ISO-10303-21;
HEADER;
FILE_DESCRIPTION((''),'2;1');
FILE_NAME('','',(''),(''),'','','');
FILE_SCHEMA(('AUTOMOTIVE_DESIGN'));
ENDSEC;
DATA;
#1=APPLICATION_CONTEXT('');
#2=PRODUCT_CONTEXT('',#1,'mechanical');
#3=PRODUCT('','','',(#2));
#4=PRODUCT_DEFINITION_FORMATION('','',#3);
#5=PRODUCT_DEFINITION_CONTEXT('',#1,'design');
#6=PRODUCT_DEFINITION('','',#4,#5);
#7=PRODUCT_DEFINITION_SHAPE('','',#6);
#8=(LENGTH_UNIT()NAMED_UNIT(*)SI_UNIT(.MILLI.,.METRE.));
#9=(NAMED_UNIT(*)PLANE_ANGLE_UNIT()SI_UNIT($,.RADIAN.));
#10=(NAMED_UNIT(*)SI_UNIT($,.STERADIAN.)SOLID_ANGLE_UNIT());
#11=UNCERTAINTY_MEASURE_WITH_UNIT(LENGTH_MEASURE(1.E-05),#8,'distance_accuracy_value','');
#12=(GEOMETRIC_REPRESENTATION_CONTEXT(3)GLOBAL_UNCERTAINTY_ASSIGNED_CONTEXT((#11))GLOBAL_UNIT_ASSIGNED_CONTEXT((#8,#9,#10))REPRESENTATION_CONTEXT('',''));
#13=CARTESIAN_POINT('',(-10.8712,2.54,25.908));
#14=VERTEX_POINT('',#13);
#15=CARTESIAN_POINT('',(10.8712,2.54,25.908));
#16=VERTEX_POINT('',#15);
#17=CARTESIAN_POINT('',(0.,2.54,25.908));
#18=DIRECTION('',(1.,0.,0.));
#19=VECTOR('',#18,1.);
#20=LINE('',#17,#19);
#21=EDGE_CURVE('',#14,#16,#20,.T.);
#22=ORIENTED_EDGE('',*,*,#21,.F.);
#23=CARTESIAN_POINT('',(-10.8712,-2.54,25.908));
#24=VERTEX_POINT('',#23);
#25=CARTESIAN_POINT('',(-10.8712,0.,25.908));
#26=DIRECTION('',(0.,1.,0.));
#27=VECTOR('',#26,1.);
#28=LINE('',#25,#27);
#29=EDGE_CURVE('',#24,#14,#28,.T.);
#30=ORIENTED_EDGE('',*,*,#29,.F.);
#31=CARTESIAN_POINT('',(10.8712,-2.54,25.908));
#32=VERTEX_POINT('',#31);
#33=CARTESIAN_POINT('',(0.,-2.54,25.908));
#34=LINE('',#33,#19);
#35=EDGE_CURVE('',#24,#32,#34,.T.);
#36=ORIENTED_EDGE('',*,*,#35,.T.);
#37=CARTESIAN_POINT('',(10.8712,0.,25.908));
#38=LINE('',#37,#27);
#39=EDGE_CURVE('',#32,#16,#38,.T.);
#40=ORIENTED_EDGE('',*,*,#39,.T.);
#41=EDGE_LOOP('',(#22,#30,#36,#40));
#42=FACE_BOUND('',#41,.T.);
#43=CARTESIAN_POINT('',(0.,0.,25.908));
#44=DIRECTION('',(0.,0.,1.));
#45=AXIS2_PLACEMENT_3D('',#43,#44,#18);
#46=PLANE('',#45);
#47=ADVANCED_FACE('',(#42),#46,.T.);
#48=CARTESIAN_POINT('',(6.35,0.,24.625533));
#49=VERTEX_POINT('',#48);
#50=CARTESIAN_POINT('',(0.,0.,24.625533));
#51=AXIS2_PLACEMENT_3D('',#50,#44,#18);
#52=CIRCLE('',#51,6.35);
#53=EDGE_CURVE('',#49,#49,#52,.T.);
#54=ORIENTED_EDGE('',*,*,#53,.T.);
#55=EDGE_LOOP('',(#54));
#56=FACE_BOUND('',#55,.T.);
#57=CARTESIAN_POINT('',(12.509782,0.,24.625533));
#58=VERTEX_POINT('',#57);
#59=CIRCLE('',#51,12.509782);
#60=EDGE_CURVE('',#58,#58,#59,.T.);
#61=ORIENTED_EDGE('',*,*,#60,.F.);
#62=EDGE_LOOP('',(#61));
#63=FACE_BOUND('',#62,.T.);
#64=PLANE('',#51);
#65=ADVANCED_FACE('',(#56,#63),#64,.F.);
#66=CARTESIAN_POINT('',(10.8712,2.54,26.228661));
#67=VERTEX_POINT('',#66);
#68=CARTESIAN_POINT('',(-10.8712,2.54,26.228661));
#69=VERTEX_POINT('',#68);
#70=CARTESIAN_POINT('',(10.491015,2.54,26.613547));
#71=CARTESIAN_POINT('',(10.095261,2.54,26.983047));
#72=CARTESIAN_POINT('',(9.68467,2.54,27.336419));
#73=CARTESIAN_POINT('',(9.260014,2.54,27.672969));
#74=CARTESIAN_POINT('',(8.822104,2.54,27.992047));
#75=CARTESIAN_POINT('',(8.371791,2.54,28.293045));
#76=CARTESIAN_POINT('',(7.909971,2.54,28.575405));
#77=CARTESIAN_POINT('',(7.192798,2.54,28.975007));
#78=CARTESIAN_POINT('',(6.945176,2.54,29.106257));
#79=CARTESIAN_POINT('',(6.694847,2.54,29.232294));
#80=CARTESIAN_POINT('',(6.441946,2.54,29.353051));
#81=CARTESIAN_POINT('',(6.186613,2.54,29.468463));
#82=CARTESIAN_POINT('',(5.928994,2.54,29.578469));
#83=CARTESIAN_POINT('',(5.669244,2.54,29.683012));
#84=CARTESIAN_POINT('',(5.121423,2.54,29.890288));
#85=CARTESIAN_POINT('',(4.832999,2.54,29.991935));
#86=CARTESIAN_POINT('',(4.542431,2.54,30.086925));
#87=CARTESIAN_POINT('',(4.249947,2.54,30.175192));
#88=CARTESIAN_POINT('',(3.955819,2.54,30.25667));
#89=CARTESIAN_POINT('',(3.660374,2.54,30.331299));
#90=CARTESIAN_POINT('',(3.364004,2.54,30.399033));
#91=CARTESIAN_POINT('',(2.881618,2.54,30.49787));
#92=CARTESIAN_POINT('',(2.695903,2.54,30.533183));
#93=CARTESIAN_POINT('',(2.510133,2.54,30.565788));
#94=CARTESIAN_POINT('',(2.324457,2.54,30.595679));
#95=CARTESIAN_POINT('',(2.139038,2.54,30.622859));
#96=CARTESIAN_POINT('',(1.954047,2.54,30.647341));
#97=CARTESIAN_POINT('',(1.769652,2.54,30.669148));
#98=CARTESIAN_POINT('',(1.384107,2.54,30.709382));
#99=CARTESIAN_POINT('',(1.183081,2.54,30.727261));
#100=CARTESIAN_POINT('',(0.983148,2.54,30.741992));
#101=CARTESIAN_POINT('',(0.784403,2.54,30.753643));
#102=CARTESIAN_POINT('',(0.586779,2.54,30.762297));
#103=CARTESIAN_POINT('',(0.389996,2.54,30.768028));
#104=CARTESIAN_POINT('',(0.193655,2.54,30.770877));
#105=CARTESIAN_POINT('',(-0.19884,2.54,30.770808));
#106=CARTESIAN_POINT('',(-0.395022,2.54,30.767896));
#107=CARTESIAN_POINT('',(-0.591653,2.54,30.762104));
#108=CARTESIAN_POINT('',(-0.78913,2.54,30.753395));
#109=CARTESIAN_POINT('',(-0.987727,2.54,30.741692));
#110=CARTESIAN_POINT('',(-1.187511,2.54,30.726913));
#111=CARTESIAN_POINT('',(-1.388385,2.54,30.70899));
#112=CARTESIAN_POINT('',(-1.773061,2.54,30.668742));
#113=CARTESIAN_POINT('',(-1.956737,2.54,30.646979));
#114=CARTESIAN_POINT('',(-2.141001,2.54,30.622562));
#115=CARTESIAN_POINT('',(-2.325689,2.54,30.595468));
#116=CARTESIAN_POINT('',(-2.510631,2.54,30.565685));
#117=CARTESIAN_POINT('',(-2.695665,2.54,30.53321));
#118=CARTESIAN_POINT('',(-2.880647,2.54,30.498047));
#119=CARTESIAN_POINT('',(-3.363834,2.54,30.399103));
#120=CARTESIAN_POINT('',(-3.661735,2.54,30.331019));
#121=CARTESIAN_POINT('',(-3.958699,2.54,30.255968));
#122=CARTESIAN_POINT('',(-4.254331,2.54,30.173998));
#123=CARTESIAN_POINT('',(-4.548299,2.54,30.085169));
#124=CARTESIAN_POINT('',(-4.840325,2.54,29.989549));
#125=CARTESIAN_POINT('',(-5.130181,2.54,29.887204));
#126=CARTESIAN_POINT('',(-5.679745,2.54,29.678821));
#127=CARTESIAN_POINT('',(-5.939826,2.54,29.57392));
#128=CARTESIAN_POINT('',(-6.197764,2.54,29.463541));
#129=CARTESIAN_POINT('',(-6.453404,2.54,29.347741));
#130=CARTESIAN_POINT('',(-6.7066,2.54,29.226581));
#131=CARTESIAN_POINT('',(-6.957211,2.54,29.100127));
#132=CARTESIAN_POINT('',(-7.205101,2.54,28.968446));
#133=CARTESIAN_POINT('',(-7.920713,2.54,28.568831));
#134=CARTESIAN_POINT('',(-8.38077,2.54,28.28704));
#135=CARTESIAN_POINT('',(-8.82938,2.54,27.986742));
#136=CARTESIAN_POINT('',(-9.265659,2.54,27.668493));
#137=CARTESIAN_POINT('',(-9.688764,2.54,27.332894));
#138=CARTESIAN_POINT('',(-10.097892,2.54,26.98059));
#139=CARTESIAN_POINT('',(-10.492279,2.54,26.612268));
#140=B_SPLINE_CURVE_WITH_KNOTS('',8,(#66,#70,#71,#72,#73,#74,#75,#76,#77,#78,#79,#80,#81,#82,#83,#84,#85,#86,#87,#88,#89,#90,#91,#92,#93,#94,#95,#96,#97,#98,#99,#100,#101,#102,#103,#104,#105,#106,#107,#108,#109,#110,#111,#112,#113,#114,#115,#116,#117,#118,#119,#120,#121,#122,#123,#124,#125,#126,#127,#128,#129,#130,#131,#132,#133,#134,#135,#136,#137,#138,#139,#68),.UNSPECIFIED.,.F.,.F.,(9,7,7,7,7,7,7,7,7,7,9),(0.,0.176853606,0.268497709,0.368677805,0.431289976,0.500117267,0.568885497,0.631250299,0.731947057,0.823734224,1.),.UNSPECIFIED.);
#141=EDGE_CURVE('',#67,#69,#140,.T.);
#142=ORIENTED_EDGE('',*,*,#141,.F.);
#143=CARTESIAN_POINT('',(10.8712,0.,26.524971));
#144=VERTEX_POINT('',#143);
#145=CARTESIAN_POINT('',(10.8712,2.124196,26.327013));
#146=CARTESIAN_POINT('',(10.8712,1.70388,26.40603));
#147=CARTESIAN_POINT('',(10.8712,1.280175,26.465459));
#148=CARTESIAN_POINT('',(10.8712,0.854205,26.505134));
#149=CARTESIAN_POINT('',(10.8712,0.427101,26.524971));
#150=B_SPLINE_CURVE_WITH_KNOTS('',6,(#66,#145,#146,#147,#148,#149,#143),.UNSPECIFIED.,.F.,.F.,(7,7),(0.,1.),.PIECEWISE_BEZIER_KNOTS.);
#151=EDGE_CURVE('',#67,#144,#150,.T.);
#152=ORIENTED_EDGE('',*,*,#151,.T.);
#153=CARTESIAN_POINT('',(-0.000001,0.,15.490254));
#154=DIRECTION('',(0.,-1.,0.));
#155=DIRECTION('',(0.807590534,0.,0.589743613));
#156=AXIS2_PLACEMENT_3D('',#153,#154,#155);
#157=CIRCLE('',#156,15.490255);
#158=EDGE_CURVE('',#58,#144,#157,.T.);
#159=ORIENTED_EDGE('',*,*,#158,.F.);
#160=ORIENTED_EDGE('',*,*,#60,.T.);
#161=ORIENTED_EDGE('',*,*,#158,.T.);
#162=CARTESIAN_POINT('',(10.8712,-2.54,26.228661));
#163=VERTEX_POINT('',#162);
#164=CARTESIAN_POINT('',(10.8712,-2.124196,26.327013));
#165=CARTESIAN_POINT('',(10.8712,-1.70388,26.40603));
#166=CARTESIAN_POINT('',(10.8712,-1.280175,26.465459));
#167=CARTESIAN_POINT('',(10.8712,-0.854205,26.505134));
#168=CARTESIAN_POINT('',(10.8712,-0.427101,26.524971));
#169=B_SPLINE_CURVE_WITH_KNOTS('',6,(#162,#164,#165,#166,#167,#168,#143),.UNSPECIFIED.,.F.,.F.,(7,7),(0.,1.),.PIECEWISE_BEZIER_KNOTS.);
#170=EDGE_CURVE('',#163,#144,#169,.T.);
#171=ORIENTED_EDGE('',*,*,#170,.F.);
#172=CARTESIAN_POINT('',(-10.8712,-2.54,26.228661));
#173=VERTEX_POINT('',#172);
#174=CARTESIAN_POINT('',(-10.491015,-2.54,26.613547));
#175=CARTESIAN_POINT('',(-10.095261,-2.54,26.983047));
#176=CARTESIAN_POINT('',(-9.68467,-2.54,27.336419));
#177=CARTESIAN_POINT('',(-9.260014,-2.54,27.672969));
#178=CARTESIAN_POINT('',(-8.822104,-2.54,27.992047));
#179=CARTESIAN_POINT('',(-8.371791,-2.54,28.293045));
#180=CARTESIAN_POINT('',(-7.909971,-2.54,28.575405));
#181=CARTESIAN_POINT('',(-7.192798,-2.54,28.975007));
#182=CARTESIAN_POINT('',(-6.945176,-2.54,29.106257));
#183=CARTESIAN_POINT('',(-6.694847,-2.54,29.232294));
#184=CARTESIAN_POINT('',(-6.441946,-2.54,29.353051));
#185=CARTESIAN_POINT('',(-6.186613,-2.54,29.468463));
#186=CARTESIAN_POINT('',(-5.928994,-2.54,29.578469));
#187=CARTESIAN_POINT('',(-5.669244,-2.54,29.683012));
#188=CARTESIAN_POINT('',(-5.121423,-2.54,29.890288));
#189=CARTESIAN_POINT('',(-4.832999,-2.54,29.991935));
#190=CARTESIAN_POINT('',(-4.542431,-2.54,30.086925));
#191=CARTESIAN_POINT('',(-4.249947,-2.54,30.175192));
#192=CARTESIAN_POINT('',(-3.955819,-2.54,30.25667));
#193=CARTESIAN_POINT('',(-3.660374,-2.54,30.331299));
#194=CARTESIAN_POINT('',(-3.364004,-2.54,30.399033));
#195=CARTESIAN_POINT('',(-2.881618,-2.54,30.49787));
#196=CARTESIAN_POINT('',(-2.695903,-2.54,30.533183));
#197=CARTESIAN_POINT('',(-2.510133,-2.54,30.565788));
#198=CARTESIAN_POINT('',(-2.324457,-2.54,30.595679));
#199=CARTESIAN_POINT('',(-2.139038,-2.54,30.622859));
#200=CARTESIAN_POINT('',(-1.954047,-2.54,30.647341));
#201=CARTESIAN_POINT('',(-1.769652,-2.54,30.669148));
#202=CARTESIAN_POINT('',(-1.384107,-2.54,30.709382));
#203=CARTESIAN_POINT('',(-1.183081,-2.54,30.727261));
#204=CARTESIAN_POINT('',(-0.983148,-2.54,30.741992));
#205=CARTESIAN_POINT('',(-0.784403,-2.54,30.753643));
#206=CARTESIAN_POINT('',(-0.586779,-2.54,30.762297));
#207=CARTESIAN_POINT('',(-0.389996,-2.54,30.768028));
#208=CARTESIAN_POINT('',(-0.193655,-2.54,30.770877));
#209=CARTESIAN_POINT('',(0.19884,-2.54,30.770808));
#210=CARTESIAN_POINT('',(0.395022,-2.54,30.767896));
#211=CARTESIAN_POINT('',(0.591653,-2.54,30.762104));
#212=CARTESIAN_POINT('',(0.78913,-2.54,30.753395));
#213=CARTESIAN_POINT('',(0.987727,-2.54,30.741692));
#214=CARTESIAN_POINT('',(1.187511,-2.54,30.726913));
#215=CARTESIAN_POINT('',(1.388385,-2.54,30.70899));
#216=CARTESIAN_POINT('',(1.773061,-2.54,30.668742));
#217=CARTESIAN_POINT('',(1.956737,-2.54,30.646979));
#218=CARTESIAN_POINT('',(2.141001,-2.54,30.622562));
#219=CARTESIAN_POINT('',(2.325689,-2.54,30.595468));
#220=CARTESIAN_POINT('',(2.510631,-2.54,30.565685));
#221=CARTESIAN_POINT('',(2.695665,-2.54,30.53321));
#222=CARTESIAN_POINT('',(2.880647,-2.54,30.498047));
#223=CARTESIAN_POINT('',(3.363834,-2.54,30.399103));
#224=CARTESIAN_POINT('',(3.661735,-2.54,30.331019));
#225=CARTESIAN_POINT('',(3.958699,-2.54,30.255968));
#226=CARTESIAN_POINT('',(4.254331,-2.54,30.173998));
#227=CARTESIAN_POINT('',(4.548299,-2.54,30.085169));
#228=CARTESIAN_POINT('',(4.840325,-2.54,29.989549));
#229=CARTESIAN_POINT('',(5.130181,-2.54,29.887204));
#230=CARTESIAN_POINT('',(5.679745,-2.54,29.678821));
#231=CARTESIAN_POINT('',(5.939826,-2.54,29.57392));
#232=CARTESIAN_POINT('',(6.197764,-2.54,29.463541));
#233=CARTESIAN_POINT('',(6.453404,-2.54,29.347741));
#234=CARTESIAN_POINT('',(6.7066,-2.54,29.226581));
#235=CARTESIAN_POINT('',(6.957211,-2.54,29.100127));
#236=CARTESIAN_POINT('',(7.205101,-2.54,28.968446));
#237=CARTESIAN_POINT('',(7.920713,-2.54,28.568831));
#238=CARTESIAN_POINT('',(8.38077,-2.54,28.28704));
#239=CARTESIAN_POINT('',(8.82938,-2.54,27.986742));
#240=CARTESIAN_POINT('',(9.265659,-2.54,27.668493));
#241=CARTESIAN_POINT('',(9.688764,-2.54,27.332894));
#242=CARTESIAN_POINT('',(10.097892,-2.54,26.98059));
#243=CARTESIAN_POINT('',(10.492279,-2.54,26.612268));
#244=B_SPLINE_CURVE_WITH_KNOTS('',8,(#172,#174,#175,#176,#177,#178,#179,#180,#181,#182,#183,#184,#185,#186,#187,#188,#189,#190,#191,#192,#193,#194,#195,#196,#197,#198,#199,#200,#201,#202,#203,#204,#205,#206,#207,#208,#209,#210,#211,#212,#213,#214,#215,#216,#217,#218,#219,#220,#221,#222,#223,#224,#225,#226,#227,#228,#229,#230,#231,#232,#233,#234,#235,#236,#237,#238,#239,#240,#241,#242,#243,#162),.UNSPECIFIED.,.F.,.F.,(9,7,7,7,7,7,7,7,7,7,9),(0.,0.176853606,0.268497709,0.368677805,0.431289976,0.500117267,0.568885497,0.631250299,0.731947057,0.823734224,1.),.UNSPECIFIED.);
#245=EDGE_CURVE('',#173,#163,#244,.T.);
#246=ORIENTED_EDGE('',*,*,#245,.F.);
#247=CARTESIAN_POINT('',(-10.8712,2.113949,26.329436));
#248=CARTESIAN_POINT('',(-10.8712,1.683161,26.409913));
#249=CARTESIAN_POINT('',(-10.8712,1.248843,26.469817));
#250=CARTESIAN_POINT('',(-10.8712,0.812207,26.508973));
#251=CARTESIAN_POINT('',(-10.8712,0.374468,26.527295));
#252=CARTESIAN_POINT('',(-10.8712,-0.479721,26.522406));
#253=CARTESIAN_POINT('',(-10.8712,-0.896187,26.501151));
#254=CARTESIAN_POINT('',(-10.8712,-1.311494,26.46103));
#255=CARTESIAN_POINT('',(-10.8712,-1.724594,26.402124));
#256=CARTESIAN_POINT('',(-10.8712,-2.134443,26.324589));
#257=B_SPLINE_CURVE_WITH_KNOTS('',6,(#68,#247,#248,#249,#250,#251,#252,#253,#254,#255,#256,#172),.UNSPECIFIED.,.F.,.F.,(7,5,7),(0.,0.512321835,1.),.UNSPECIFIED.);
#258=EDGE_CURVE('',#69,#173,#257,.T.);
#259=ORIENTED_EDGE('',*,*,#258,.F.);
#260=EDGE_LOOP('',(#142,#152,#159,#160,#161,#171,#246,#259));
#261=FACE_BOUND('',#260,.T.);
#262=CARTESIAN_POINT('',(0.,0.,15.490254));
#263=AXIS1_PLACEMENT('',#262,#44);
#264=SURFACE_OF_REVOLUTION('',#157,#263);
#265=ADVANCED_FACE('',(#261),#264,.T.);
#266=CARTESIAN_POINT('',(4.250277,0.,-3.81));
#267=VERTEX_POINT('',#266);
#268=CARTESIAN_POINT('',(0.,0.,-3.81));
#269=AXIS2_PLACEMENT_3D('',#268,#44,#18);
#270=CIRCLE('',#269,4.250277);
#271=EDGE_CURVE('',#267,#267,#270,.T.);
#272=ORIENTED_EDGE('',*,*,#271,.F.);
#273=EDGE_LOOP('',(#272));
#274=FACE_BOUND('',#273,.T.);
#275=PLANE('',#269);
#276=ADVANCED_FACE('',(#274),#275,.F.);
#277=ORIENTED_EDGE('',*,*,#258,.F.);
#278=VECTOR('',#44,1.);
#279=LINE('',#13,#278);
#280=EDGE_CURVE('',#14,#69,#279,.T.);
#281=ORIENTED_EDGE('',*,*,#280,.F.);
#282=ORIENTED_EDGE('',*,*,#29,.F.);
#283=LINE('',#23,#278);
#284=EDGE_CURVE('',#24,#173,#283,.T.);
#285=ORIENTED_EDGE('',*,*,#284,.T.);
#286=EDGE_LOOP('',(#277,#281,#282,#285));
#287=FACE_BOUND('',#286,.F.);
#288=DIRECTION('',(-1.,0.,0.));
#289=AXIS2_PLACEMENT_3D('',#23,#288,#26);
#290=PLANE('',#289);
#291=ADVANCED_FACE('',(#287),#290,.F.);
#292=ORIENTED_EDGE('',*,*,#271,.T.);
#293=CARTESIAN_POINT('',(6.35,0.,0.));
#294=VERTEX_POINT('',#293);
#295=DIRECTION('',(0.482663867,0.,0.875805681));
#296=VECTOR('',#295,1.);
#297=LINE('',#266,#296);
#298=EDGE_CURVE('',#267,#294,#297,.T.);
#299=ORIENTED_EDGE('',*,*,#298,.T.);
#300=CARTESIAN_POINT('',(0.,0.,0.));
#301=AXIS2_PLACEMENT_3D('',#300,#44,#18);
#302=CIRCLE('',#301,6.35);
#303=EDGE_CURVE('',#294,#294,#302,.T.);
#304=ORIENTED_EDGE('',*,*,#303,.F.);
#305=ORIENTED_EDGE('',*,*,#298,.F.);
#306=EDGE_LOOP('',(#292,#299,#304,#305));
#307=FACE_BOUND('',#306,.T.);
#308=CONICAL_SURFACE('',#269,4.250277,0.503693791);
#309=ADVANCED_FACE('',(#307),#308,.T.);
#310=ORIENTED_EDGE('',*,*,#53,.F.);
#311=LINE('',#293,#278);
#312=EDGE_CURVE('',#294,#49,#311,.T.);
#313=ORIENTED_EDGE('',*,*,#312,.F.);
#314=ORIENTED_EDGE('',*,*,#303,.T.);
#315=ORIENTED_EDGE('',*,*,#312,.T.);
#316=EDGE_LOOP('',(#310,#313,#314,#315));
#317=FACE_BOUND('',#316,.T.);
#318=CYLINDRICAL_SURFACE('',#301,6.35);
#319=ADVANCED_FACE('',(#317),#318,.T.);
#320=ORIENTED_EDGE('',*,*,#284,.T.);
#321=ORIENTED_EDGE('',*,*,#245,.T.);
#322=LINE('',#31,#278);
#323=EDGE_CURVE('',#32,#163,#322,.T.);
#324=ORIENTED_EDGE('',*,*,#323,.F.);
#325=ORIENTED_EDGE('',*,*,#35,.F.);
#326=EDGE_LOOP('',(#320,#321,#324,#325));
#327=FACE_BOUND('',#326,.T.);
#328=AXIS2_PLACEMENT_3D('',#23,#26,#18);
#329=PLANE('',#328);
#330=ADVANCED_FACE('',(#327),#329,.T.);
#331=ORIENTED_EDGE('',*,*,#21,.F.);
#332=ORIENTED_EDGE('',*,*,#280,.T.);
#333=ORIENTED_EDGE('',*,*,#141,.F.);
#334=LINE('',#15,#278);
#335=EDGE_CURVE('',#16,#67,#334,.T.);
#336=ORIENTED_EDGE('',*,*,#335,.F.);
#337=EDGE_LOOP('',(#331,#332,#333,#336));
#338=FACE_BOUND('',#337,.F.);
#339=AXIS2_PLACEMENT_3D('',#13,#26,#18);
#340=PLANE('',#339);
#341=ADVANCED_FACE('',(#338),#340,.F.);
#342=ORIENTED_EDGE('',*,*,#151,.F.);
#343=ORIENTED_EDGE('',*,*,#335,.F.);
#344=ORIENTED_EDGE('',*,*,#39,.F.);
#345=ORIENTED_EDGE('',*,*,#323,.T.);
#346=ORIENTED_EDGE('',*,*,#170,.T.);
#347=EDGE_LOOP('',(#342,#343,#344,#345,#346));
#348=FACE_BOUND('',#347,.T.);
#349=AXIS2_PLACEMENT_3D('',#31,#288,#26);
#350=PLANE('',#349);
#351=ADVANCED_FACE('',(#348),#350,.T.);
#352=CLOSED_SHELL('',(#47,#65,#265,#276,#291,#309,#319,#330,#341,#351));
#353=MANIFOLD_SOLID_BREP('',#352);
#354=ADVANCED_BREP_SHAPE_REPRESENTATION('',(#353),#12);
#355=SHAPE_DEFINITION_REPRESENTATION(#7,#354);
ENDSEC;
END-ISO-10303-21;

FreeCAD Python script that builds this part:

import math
import FreeCAD as App
import Part
import Sketcher
Q = App.Units.Quantity


def add_polygon(sketch, points):
    """Adds a closed chain of lines whose ends are joined by coincident constraints."""
    first, n = sketch.GeometryCount, len(points)
    for a, b in zip(points, points[1:] + points[:1]):
        sketch.addGeometry(Part.LineSegment(App.Vector(*a, 0), App.Vector(*b, 0)), False)
    for i in range(n):
        sketch.addConstraint(Sketcher.Constraint("Coincident", first + i, 2, first + (i + 1) % n, 1))

doc = App.newDocument("Part")
body = doc.addObject("PartDesign::Body", "Body")

# Sketch on XZ plane
sketch1 = body.newObject("Sketcher::SketchObject", "Sketch")
sketch1.AttachmentSupport = (doc.getObject("XZ_Plane"), [""])
sketch1.MapMode = "FlatFace"
sketch1.addGeometry(Part.LineSegment(App.Vector(0, 30.980509, 0), App.Vector(0, -3.81, 0)), False)
sketch1.addGeometry(Part.LineSegment(App.Vector(0, -3.81, 0), App.Vector(4.250277, -3.81, 0)), False)
sketch1.addGeometry(Part.LineSegment(App.Vector(4.250277, -3.81, 0), App.Vector(6.35, 0, 0)), False)
sketch1.addGeometry(Part.LineSegment(App.Vector(6.35, 0, 0), App.Vector(6.35, 24.625533, 0)), False)
sketch1.addGeometry(Part.LineSegment(App.Vector(6.35, 24.625533, 0), App.Vector(12.509782, 24.625533, 0)), False)
sketch1.addGeometry(Part.ArcOfCircle(Part.Circle(App.Vector(-0.000001, 15.490254, 0), App.Vector(0, 0, 1), 15.490255), math.radians(36.138816), math.radians(89.999995)), False)
sketch1.addConstraint(Sketcher.Constraint("Coincident", 0, 2, 1, 1))
sketch1.addConstraint(Sketcher.Constraint("Coincident", 1, 2, 2, 1))
sketch1.addConstraint(Sketcher.Constraint("Coincident", 2, 2, 3, 1))
sketch1.addConstraint(Sketcher.Constraint("Coincident", 3, 2, 4, 1))
sketch1.addConstraint(Sketcher.Constraint("Coincident", 4, 2, 5, 1))
sketch1.addConstraint(Sketcher.Constraint("Coincident", 5, 2, 0, 1))
sketch1.addConstraint(Sketcher.Constraint("Vertical", 0))
sketch1.addConstraint(Sketcher.Constraint("Horizontal", 1))
sketch1.addConstraint(Sketcher.Constraint("Vertical", 3))
sketch1.addConstraint(Sketcher.Constraint("Horizontal", 4))
sketch1.addConstraint(Sketcher.Constraint("PointOnObject", 5, 3, -2))
sketch1.addConstraint(Sketcher.Constraint("PointOnObject", 0, 2, -2))
sketch1.addConstraint(Sketcher.Constraint("PointOnObject", 2, 2, -1))
sketch1.addConstraint(Sketcher.Constraint("DistanceY", 0, 2, -1, 1, Q("0.15 in")))
sketch1.addConstraint(Sketcher.Constraint("DistanceX", -1, 1, 2, 2, Q("0.25 in")))
sketch1.addConstraint(Sketcher.Constraint("Radius", 5, 15.490255))
sketch1.addConstraint(Sketcher.Constraint("DistanceY", 0, 2, 0, 1, 34.790509))
sketch1.addConstraint(Sketcher.Constraint("Distance", 2, 4.35028))
sketch1.addConstraint(Sketcher.Constraint("DistanceX", 4, 1, 4, 2, 6.159782))
revolution = body.newObject("PartDesign::Revolution", "Revolution")
revolution.Profile = sketch1
revolution.ReferenceAxis = (sketch1, ["V_Axis"])
revolution.Angle = 360

# Sketch on XY plane
sketch2 = body.newObject("Sketcher::SketchObject", "Sketch001")
sketch2.AttachmentSupport = (doc.getObject("XY_Plane"), [""])
sketch2.MapMode = "FlatFace"
sketch2.AttachmentOffset = App.Placement(App.Vector(0, 0, 1.02 * 25.4), App.Rotation())
add_polygon(sketch2, [(-10.8712, 2.54), (-10.8712, -2.54), (10.8712, -2.54), (10.8712, 2.54)])  # lines 0-3
sketch2.addConstraint(Sketcher.Constraint("Vertical", 0))
sketch2.addConstraint(Sketcher.Constraint("Horizontal", 1))
sketch2.addConstraint(Sketcher.Constraint("Vertical", 2))
sketch2.addConstraint(Sketcher.Constraint("Horizontal", 3))
sketch2.addConstraint(Sketcher.Constraint("Symmetric", 0, 2, 2, 2, -1, 1))
sketch2.addConstraint(Sketcher.Constraint("DistanceY", 0, 2, 0, 1, Q("0.2 in")))
sketch2.addConstraint(Sketcher.Constraint("DistanceX", 1, 1, 1, 2, Q("0.856 in")))
pocket1 = body.newObject("PartDesign::Pocket", "Pocket")
pocket1.Profile = sketch2
pocket1.Type = "ThroughAll"
pocket1.Reversed = True

doc.recompute()
